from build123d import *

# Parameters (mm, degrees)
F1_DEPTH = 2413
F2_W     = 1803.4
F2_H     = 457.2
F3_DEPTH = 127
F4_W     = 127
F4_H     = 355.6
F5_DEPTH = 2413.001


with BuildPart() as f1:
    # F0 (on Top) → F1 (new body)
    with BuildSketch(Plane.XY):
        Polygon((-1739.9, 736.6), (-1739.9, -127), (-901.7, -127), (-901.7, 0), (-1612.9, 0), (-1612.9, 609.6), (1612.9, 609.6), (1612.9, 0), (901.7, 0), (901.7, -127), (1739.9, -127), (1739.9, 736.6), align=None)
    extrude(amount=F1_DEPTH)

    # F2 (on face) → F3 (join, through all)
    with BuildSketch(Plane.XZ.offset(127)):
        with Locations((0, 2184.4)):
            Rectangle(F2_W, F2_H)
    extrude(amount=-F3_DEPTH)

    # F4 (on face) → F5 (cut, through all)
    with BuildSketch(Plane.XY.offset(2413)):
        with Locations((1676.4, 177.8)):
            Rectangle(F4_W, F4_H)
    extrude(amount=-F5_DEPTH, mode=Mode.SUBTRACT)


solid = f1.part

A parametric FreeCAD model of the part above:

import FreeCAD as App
import Part
import Sketcher

V = App.Vector
Q = App.Units.Quantity


def add_polygon(sketch, points):
    """Adds a closed chain of lines whose ends are joined by coincident constraints."""
    first, n = sketch.GeometryCount, len(points)
    for a, b in zip(points, points[1:] + points[:1]):
        sketch.addGeometry(Part.LineSegment(App.Vector(*a, 0), App.Vector(*b, 0)), False)
    for i in range(n):
        sketch.addConstraint(Sketcher.Constraint("Coincident", first + i, 2, first + (i + 1) % n, 1))

doc = App.newDocument("Part")
params = doc.addObject("Spreadsheet::Sheet", "Params")
for row, (alias, value) in enumerate([
    ("sketch1_width", "33 in"),
    ("sketch1_width2", "28 in"),
    ("sketch1_width3", "127 in"),
    ("sketch1_height", "34 in"),
    ("sketch1_height2", "5 in"),
    ("pad1_length", "95 in"),
    ("sketch2_width", "71 in"),
    ("sketch2_height", "18 in"),
    ("pad2_length", "5 in"),
    ("sketch3_width", "5 in"),
    ("sketch3_height", "14 in"),
], start=1):
    params.set(f"A{row}", alias)
    params.set(f"B{row}", "=" + value)
    params.setAlias(f"B{row}", alias)

body = doc.addObject("PartDesign::Body", "Body")

# Sketch on XY plane
sketch1 = body.newObject("Sketcher::SketchObject", "Sketch")
sketch1.AttachmentSupport = (doc.getObject("XY_Plane"), [""])
sketch1.MapMode = "FlatFace"
add_polygon(sketch1, [(-1739.9, 736.6), (-1739.9, -127), (-901.7, -127), (-901.7, 0), (-1612.9, 0), (-1612.9, 609.6), (1612.9, 609.6), (1612.9, 0), (901.7, 0), (901.7, -127), (1739.9, -127), (1739.9, 736.6)])  # lines 0-11
sketch1.addConstraint(Sketcher.Constraint("Vertical", 0))
sketch1.addConstraint(Sketcher.Constraint("Horizontal", 1))
sketch1.addConstraint(Sketcher.Constraint("Vertical", 2))
sketch1.addConstraint(Sketcher.Constraint("Horizontal", 3))
sketch1.addConstraint(Sketcher.Constraint("Vertical", 4))
sketch1.addConstraint(Sketcher.Constraint("Horizontal", 5))
sketch1.addConstraint(Sketcher.Constraint("Vertical", 6))
sketch1.addConstraint(Sketcher.Constraint("Horizontal", 7))
sketch1.addConstraint(Sketcher.Constraint("Vertical", 8))
sketch1.addConstraint(Sketcher.Constraint("Horizontal", 9))
sketch1.addConstraint(Sketcher.Constraint("Vertical", 10))
sketch1.addConstraint(Sketcher.Constraint("Horizontal", 11))
sketch1.addConstraint(Sketcher.Constraint("Symmetric", 3, 2, 6, 2, -1, 1))
sketch1.addConstraint(Sketcher.Constraint("Symmetric", 2, 2, 7, 2, -2))
sketch1.addConstraint(Sketcher.Constraint("Symmetric", 0, 2, 9, 2, -2))
sketch1.addConstraint(Sketcher.Constraint("DistanceX", 1, 1, 1, 2, Q("33 in")))
sketch1.addConstraint(Sketcher.Constraint("DistanceX", 3, 2, 3, 1, Q("28 in")))
sketch1.addConstraint(Sketcher.Constraint("DistanceX", 5, 1, 5, 2, Q("127 in")))
sketch1.addConstraint(Sketcher.Constraint("DistanceY", 0, 2, 0, 1, Q("34 in")))
sketch1.addConstraint(Sketcher.Constraint("DistanceY", 2, 1, 2, 2, Q("5 in")))
sketch1.addConstraint(Sketcher.Constraint("DistanceY", 4, 1, 4, 2, Q("24 in")))
sketch1.setExpression("Constraints[27]", "Params.sketch1_width")
sketch1.setExpression("Constraints[28]", "Params.sketch1_width2")
sketch1.setExpression("Constraints[29]", "Params.sketch1_width3")
sketch1.setExpression("Constraints[30]", "Params.sketch1_height")
sketch1.setExpression("Constraints[31]", "Params.sketch1_height2")
pad1 = body.newObject("PartDesign::Pad", "Pad")
pad1.Profile = sketch1
pad1.setExpression("Length", "Params.pad1_length")

# Sketch on XZ plane
sketch2 = body.newObject("Sketcher::SketchObject", "Sketch001")
sketch2.AttachmentSupport = (doc.getObject("XZ_Plane"), [""])
sketch2.MapMode = "FlatFace"
sketch2.AttachmentOffset = App.Placement(V(0, 0, 5 * 25.4), App.Rotation())
add_polygon(sketch2, [(-901.7, 2413), (-901.7, 1955.8), (901.7, 1955.8), (901.7, 2413)])  # lines 0-3
sketch2.addConstraint(Sketcher.Constraint("Vertical", 0))
sketch2.addConstraint(Sketcher.Constraint("Horizontal", 1))
sketch2.addConstraint(Sketcher.Constraint("Vertical", 2))
sketch2.addConstraint(Sketcher.Constraint("Horizontal", 3))
sketch2.addConstraint(Sketcher.Constraint("DistanceX", 1, 1, 1, 2, Q("71 in")))
sketch2.addConstraint(Sketcher.Constraint("DistanceY", 0, 2, 0, 1, Q("18 in")))
sketch2.addConstraint(Sketcher.Constraint("DistanceY", -1, 1, 0, 2, Q("77 in")))
sketch2.addConstraint(Sketcher.Constraint("DistanceX", 0, 2, -1, 1, Q("35.5 in")))
sketch2.setExpression("Constraints[8]", "Params.sketch2_width")
sketch2.setExpression("Constraints[9]", "Params.sketch2_height")
pad2 = body.newObject("PartDesign::Pad", "Pad001")
pad2.Profile = sketch2
pad2.setExpression("Length", "Params.pad2_length")
pad2.Reversed = True

# Sketch on XY plane
sketch3 = body.newObject("Sketcher::SketchObject", "Sketch002")
sketch3.AttachmentSupport = (doc.getObject("XY_Plane"), [""])
sketch3.MapMode = "FlatFace"
sketch3.AttachmentOffset = App.Placement(V(0, 0, 95 * 25.4), App.Rotation())
add_polygon(sketch3, [(1612.9, 355.6), (1612.9, 0), (1739.9, 0), (1739.9, 355.6)])  # lines 0-3
sketch3.addConstraint(Sketcher.Constraint("Vertical", 0))
sketch3.addConstraint(Sketcher.Constraint("Horizontal", 1))
sketch3.addConstraint(Sketcher.Constraint("Vertical", 2))
sketch3.addConstraint(Sketcher.Constraint("Horizontal", 3))
sketch3.addConstraint(Sketcher.Constraint("PointOnObject", 0, 2, -1))
sketch3.addConstraint(Sketcher.Constraint("DistanceX", 1, 1, 1, 2, Q("5 in")))
sketch3.addConstraint(Sketcher.Constraint("DistanceY", 0, 2, 0, 1, Q("14 in")))
sketch3.addConstraint(Sketcher.Constraint("DistanceX", -1, 1, 0, 2, Q("63.5 in")))
sketch3.setExpression("Constraints[9]", "Params.sketch3_width")
sketch3.setExpression("Constraints[10]", "Params.sketch3_height")
pocket1 = body.newObject("PartDesign::Pocket", "Pocket")
pocket1.Profile = sketch3
pocket1.Type = "ThroughAll"

doc.recompute()
